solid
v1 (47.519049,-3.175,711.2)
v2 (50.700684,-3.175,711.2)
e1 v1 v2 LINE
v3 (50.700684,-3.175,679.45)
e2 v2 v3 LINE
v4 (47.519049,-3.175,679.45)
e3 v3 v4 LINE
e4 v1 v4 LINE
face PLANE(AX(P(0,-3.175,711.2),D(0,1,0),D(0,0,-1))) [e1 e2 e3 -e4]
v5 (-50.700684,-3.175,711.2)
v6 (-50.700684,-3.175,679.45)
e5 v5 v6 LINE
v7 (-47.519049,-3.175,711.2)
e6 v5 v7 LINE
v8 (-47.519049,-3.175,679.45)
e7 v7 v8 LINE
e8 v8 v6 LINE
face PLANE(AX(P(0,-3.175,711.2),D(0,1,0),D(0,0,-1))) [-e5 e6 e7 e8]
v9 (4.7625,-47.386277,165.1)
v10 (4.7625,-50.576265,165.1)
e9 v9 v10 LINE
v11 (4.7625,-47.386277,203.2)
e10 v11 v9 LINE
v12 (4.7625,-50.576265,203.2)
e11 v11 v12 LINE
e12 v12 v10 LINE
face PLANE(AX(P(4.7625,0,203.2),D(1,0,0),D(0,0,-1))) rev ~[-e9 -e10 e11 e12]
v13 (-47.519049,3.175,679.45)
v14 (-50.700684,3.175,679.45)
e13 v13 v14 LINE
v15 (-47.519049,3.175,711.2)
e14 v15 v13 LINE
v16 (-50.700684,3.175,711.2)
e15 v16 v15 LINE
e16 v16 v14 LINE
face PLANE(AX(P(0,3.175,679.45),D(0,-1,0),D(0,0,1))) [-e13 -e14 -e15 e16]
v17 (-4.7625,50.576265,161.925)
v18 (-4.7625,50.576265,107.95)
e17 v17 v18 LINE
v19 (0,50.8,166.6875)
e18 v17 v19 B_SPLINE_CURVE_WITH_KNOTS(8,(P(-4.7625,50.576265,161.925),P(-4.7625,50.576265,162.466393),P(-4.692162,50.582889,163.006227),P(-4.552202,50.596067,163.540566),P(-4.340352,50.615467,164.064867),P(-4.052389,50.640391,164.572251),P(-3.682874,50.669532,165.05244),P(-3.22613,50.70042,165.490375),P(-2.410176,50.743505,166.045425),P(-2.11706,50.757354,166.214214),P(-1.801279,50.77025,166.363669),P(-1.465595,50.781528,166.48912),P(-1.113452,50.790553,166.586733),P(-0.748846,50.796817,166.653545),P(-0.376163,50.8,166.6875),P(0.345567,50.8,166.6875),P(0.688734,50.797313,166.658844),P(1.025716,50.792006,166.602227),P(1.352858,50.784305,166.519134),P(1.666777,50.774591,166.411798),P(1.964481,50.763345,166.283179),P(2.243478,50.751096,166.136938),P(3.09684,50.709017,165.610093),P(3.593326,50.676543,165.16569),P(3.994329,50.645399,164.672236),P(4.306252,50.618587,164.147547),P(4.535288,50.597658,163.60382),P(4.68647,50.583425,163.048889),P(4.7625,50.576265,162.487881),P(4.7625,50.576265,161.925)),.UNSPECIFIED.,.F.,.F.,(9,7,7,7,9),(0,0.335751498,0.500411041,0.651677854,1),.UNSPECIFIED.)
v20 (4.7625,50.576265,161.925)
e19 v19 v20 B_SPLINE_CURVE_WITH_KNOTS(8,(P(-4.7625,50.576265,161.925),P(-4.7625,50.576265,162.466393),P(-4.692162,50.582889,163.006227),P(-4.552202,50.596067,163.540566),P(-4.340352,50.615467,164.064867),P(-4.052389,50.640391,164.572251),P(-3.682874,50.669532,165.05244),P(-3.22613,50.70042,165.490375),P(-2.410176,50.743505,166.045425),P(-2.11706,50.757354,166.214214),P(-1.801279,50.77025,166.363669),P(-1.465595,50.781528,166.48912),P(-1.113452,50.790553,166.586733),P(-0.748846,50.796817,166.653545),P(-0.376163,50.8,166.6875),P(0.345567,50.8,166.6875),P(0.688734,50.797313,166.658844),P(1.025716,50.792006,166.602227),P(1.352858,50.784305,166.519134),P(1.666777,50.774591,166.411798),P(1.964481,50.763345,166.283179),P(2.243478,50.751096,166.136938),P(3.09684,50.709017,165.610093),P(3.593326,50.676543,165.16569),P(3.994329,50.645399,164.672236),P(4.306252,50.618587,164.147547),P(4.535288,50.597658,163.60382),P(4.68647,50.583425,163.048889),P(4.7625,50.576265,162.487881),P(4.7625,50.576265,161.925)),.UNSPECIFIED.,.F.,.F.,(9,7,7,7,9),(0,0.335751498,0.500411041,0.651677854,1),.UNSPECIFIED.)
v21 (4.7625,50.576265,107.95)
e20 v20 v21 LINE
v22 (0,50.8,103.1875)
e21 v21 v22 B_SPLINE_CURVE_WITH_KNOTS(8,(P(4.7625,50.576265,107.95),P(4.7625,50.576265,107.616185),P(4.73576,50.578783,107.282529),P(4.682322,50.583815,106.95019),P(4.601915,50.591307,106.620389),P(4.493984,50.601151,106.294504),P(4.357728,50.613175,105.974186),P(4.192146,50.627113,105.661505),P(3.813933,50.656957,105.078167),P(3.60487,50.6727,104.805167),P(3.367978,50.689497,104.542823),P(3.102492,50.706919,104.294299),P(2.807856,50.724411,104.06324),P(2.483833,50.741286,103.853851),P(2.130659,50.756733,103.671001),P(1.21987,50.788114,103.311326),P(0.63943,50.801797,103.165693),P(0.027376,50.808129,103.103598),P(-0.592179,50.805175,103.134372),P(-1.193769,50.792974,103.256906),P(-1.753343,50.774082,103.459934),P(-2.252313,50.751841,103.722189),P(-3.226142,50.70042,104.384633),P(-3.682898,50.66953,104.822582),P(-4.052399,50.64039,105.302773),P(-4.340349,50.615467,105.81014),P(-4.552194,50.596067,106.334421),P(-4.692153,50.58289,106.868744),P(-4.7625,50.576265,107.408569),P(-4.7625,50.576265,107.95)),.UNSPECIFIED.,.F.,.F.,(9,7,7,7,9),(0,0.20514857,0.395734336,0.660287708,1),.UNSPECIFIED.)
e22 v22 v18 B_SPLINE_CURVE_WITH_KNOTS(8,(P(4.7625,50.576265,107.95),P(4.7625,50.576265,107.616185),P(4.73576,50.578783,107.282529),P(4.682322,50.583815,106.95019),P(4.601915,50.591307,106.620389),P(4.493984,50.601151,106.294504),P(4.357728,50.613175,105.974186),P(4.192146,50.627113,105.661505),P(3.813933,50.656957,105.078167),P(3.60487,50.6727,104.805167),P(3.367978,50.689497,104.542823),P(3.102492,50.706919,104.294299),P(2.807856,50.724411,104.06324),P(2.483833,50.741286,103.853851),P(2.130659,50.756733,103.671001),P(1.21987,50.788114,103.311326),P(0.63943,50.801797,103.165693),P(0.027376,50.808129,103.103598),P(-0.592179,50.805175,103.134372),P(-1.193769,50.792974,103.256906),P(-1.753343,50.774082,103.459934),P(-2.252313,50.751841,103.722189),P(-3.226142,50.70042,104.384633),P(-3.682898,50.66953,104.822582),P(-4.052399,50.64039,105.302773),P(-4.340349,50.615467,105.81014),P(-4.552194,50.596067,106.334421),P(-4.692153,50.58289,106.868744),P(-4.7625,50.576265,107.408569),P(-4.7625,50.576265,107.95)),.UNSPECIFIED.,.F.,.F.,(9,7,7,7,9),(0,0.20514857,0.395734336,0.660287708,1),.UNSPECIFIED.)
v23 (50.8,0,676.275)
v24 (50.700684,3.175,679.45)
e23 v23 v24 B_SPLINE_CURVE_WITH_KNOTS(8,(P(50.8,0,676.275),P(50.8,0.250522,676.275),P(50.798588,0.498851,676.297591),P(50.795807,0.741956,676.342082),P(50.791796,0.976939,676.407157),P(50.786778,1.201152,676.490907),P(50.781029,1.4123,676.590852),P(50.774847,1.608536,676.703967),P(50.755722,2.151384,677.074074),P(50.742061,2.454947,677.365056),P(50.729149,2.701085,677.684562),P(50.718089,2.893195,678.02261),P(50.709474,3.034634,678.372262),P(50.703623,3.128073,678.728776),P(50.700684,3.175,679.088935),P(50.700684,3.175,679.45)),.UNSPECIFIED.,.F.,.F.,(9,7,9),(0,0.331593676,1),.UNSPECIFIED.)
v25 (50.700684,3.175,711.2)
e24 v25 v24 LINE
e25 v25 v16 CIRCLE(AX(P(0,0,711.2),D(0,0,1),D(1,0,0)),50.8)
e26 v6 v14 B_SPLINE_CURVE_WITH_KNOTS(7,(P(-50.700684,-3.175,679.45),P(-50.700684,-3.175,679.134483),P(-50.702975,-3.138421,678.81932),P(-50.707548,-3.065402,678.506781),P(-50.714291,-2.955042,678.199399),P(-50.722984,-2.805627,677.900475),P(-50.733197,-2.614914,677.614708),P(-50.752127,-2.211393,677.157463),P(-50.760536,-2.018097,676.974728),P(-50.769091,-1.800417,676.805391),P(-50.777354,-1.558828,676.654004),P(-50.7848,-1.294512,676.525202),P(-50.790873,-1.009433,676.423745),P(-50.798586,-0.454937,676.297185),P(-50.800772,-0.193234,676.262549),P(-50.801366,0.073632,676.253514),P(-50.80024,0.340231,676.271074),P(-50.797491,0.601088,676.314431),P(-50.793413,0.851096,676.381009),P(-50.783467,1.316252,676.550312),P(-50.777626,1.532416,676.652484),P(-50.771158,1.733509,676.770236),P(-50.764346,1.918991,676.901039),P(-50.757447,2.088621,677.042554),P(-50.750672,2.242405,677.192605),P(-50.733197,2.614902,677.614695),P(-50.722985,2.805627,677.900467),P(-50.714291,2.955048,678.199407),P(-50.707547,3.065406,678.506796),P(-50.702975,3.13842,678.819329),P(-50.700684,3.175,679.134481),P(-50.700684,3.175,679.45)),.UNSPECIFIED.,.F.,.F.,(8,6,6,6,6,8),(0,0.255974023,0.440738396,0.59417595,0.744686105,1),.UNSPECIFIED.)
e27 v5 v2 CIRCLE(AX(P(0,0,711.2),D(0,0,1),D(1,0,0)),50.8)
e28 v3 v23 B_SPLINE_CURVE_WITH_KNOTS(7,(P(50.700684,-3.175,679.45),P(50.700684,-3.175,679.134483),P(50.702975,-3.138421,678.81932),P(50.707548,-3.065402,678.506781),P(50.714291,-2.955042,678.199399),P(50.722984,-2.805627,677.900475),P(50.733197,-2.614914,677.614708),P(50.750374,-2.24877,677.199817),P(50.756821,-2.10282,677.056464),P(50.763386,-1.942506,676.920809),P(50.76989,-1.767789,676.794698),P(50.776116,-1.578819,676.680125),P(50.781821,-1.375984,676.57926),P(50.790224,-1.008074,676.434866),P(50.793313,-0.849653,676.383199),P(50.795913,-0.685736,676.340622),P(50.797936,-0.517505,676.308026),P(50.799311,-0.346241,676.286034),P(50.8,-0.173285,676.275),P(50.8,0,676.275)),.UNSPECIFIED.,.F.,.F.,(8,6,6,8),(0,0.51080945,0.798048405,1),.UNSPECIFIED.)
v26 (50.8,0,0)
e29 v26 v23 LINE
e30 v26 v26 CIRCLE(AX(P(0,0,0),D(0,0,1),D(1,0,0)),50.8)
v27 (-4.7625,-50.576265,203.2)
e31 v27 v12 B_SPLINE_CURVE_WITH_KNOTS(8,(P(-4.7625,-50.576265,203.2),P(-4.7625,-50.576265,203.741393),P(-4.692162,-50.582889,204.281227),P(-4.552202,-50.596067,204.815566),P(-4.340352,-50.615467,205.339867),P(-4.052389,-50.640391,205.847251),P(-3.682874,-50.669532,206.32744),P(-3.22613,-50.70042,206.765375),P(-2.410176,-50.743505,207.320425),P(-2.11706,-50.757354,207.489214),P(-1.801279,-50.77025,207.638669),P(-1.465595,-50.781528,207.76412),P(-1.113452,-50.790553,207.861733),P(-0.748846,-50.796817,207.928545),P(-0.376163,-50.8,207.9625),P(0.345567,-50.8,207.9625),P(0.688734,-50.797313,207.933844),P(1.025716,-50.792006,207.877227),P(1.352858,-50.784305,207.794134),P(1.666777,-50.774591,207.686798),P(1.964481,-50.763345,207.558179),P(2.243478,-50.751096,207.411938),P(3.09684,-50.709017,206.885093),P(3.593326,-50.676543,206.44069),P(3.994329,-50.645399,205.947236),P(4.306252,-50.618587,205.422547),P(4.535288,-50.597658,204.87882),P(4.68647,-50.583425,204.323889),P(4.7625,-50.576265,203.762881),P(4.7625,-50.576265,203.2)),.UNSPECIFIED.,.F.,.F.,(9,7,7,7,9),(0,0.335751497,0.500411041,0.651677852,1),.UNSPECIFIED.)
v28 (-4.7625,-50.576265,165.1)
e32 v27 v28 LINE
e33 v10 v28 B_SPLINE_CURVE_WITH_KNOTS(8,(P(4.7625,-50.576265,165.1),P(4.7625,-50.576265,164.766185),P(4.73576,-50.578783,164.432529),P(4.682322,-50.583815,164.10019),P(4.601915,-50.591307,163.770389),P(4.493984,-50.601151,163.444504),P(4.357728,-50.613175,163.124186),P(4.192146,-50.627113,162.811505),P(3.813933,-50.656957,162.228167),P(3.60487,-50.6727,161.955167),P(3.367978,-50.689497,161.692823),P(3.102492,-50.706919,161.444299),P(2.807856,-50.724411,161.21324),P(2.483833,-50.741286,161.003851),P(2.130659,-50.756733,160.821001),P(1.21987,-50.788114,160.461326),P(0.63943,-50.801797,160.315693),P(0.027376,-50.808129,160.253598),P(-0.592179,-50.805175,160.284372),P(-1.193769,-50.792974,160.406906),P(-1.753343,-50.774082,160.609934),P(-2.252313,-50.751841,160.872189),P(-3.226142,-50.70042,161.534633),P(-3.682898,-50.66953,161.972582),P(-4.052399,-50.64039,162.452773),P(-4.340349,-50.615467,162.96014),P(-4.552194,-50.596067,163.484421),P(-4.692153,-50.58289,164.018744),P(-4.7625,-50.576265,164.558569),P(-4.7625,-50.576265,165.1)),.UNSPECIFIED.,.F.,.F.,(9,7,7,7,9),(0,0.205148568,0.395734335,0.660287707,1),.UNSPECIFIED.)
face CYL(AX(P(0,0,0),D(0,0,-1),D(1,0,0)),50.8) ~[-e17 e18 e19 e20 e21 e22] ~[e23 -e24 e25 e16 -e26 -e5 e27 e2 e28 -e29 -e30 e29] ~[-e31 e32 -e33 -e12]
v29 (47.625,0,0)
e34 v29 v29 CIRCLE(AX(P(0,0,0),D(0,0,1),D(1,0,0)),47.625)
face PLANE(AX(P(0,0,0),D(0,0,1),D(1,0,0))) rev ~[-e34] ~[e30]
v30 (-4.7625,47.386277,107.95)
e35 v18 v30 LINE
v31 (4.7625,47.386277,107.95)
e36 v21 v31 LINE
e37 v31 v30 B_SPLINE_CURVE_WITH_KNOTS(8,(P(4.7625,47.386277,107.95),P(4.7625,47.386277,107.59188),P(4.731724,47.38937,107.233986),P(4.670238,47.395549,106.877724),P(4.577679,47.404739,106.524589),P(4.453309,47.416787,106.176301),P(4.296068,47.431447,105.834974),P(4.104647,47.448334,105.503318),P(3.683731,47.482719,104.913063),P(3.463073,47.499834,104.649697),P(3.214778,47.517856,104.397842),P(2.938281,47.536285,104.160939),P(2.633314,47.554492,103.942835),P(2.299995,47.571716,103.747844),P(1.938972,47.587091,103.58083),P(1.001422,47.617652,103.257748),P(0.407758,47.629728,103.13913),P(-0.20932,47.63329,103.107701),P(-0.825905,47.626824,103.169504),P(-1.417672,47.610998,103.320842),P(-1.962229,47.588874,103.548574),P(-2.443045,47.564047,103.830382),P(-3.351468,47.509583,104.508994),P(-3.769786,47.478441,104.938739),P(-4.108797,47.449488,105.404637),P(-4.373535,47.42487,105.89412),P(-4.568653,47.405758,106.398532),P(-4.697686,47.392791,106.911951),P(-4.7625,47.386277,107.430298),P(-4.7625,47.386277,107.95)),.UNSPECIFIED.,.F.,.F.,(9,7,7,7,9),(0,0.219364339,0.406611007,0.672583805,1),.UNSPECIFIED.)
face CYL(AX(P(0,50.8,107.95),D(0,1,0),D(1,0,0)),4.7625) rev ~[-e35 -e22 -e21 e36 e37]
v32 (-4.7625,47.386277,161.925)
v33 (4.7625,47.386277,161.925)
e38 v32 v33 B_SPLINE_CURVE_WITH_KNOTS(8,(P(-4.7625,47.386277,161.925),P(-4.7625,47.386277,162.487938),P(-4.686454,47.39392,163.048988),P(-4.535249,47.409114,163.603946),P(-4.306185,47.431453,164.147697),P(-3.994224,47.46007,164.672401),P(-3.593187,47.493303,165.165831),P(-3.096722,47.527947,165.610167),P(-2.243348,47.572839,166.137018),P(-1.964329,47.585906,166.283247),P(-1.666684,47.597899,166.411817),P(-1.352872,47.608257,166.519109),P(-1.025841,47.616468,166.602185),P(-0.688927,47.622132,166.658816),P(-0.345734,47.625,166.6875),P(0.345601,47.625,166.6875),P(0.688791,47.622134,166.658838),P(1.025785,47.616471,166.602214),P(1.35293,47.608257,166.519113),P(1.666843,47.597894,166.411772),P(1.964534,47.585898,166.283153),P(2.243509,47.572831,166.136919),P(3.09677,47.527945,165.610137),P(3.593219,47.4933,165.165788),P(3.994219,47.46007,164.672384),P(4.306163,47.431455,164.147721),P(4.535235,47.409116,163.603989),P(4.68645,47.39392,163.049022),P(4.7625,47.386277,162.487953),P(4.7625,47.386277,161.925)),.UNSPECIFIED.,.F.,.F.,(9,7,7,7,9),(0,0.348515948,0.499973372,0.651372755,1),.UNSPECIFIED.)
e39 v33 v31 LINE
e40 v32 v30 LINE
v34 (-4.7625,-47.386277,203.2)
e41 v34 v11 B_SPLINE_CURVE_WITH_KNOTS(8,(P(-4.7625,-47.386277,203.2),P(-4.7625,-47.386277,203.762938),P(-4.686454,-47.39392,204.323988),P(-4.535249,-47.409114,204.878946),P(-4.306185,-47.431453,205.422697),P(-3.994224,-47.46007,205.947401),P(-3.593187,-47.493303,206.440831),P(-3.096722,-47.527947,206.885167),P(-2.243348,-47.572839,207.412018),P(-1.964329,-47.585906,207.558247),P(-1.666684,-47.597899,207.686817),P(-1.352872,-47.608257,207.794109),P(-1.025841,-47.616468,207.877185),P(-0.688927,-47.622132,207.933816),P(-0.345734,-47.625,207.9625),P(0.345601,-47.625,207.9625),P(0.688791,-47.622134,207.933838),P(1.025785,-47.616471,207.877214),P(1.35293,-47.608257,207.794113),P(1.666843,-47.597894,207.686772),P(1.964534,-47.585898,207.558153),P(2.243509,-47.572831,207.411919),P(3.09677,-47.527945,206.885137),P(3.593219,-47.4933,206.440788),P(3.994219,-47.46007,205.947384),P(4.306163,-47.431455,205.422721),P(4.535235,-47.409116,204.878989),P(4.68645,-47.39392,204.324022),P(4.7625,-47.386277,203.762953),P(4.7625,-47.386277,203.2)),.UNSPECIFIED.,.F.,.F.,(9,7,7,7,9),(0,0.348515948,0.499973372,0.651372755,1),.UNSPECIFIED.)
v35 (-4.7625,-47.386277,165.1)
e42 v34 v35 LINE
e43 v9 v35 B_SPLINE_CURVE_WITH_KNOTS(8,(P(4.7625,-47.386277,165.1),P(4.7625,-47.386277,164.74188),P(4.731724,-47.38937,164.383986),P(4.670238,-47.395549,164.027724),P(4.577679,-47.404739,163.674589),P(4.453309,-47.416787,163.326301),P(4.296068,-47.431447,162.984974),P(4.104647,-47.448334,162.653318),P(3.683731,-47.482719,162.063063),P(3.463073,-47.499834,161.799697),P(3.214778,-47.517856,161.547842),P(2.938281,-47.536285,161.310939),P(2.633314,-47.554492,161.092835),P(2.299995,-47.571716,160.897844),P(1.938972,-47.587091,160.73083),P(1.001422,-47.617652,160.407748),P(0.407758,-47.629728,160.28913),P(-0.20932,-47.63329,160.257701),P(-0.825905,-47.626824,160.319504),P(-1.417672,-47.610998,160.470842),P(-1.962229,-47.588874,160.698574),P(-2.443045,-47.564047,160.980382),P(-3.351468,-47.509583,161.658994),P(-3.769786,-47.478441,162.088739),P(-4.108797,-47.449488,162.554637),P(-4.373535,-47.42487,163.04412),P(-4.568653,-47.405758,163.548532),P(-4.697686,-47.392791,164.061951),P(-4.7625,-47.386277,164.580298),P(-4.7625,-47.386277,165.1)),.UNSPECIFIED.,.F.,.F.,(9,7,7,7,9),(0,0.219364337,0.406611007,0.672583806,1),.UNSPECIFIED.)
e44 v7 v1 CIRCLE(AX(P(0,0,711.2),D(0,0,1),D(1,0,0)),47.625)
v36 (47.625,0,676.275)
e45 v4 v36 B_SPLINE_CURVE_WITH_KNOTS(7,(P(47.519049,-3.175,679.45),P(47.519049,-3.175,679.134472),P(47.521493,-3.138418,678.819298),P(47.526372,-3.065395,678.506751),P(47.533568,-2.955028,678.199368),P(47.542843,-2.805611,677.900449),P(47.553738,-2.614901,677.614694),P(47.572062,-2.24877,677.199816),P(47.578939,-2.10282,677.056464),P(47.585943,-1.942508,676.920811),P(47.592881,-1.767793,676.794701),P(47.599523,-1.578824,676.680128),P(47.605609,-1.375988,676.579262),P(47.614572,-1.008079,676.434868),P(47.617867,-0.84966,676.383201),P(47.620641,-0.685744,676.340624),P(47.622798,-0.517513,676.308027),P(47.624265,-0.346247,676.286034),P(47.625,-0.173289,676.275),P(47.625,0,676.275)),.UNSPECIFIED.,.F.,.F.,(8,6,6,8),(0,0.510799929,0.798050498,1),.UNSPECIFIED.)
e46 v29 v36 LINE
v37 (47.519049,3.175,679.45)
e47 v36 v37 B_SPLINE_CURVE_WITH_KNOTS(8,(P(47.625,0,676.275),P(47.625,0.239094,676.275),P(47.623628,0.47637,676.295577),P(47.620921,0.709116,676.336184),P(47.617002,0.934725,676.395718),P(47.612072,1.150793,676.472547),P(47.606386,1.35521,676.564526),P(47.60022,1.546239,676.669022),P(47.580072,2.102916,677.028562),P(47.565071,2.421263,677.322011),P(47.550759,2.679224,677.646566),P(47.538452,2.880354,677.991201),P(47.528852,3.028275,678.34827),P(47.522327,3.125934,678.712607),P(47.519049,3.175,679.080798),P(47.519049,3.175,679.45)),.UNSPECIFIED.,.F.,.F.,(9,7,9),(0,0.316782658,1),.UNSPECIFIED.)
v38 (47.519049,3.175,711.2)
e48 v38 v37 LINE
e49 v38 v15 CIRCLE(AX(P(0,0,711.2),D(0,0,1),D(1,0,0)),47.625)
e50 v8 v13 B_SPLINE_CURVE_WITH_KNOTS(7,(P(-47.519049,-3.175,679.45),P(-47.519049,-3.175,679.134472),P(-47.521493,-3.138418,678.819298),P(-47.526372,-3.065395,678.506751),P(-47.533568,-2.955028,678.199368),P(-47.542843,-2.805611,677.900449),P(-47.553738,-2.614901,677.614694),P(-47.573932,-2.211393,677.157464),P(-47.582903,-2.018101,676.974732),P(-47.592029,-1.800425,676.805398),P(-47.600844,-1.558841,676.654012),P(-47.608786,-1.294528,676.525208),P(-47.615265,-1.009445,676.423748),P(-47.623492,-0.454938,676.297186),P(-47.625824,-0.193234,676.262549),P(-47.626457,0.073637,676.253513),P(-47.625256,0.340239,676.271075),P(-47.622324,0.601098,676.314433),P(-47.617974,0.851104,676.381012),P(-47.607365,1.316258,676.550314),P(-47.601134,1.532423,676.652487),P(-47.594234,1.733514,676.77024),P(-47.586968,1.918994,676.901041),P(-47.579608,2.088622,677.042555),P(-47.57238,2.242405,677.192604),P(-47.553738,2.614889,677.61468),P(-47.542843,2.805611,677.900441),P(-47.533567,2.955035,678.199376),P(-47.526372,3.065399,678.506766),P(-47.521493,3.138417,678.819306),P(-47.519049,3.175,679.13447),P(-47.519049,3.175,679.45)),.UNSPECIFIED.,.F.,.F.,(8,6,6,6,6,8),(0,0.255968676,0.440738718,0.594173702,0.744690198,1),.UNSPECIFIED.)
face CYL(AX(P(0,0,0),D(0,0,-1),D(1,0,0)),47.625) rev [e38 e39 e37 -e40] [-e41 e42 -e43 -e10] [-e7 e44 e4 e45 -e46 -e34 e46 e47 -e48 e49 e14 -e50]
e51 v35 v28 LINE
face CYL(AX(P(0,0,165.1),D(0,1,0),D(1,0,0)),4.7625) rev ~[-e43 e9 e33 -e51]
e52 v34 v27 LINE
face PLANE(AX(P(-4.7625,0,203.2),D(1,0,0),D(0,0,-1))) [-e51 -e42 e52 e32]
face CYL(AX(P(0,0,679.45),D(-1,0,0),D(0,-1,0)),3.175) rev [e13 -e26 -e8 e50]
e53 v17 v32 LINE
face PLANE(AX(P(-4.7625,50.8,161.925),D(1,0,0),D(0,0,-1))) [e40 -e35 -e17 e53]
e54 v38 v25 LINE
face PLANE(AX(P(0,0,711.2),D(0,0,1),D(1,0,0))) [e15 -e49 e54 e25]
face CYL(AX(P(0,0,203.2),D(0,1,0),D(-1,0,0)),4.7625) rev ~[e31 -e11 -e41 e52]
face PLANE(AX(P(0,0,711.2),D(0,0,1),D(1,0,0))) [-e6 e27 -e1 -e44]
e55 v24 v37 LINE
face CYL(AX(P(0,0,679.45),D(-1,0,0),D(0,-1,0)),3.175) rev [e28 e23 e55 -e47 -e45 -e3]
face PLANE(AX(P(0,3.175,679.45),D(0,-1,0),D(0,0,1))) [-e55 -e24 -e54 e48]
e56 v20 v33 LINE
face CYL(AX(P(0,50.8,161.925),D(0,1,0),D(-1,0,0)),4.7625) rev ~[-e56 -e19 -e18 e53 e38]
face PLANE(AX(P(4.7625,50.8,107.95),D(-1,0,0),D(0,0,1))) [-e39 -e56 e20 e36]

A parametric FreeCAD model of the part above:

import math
import FreeCAD as App
import Part
import Sketcher
from FreeCAD import Vector
Q = App.Units.Quantity

doc = App.newDocument("Part")
body = doc.addObject("PartDesign::Body", "Body")

# Sketch on XY plane
sketch1 = body.newObject("Sketcher::SketchObject", "Sketch")
sketch1.AttachmentSupport = (doc.getObject("XY_Plane"), [""])
sketch1.MapMode = "FlatFace"
sketch1.addGeometry(Part.Circle(Vector(0, 0, 0), Vector(0, 0, 1), 51), False)
sketch1.addGeometry(Part.Circle(Vector(0, 0, 0), Vector(0, 0, 1), 48), False)
sketch1.addConstraint(Sketcher.Constraint("Coincident", 0, 3, -1, 1))
sketch1.addConstraint(Sketcher.Constraint("Coincident", 1, 3, -1, 1))
sketch1.addConstraint(Sketcher.Constraint("Diameter", 0, Q("4 in")))
sketch1.addConstraint(Sketcher.Constraint("Diameter", 1, Q("3.75 in")))
pad1 = body.newObject("PartDesign::Pad", "Pad")
pad1.Profile = sketch1
pad1.Length = Q("28 in")

# Sketch on YZ plane
sketch2 = body.newObject("Sketcher::SketchObject", "Sketch001")
sketch2.AttachmentSupport = (doc.getObject("YZ_Plane"), [""])
sketch2.MapMode = "FlatFace"
sketch2.addGeometry(Part.LineSegment(Vector(3.2, 679.5, 0), Vector(3.2, 711.2, 0)), False)
sketch2.addGeometry(Part.LineSegment(Vector(3.2, 711.2, 0), Vector(-3.2, 711.2, 0)), False)
sketch2.addGeometry(Part.LineSegment(Vector(-3.2, 711.2, 0), Vector(-3.2, 679.5, 0)), False)
sketch2.addGeometry(Part.ArcOfCircle(Part.Circle(Vector(0, 679.5, 0), Vector(0, 0, 1), 3.2), math.radians(180), math.radians(360)), False)
sketch2.addConstraint(Sketcher.Constraint("Coincident", 0, 2, 1, 1))
sketch2.addConstraint(Sketcher.Constraint("Coincident", 1, 2, 2, 1))
sketch2.addConstraint(Sketcher.Constraint("Tangent", 2, 2, 3, 1))
sketch2.addConstraint(Sketcher.Constraint("Tangent", 3, 2, 0, 1))
sketch2.addConstraint(Sketcher.Constraint("Vertical", 0))
sketch2.addConstraint(Sketcher.Constraint("Horizontal", 1))
sketch2.addConstraint(Sketcher.Constraint("Vertical", 2))
sketch2.addConstraint(Sketcher.Constraint("PointOnObject", 3, 3, -2))
sketch2.addConstraint(Sketcher.Constraint("Radius", 3, Q("0.125 in")))
sketch2.addConstraint(Sketcher.Constraint("DistanceY", 0, 1, 0, 2, Q("1.25 in")))
sketch2.addConstraint(Sketcher.Constraint("DistanceY", -1, 1, 0, 2, Q("28 in")))
pocket1 = body.newObject("PartDesign::Pocket", "Pocket")
pocket1.Profile = sketch2
pocket1.Type = "ThroughAll"
pocket1.Midplane = True

# Sketch on XZ plane
sketch3 = body.newObject("Sketcher::SketchObject", "Sketch002")
sketch3.AttachmentSupport = (doc.getObject("XZ_Plane"), [""])
sketch3.MapMode = "FlatFace"
sketch3.addGeometry(Part.LineSegment(Vector(-4.8, 165.1, 0), Vector(-4.8, 203.2, 0)), False)
sketch3.addGeometry(Part.ArcOfCircle(Part.Circle(Vector(0, 203.2, 0), Vector(0, 0, 1), 4.8), math.radians(0), math.radians(180)), False)
sketch3.addGeometry(Part.LineSegment(Vector(4.8, 203.2, 0), Vector(4.8, 165.1, 0)), False)
sketch3.addGeometry(Part.ArcOfCircle(Part.Circle(Vector(0, 165.1, 0), Vector(0, 0, 1), 4.8), math.radians(180), math.radians(360)), False)
sketch3.addConstraint(Sketcher.Constraint("Tangent", 0, 2, 1, 2))
sketch3.addConstraint(Sketcher.Constraint("Tangent", 1, 1, 2, 1))
sketch3.addConstraint(Sketcher.Constraint("Tangent", 2, 2, 3, 2))
sketch3.addConstraint(Sketcher.Constraint("Tangent", 3, 1, 0, 1))
sketch3.addConstraint(Sketcher.Constraint("Vertical", 0))
sketch3.addConstraint(Sketcher.Constraint("Vertical", 2))
sketch3.addConstraint(Sketcher.Constraint("PointOnObject", 1, 3, -2))
sketch3.addConstraint(Sketcher.Constraint("DistanceY", -1, 1, 1, 3, Q("8 in")))
sketch3.addConstraint(Sketcher.Constraint("Radius", 1, Q("0.1875 in")))
sketch3.addConstraint(Sketcher.Constraint("DistanceY", -1, 1, 3, 3, Q("6.5 in")))
pocket2 = body.newObject("PartDesign::Pocket", "Pocket001")
pocket2.Profile = sketch3
pocket2.Type = "ThroughAll"
pocket2.Reversed = True

# Sketch on XZ plane
sketch4 = body.newObject("Sketcher::SketchObject", "Sketch003")
sketch4.AttachmentSupport = (doc.getObject("XZ_Plane"), [""])
sketch4.MapMode = "FlatFace"
sketch4.AttachmentOffset = App.Placement(Vector(0, 0, -2 * 25.4), App.Rotation())
sketch4.addGeometry(Part.LineSegment(Vector(-4.8, 108, 0), Vector(-4.8, 161.9, 0)), False)
sketch4.addGeometry(Part.ArcOfCircle(Part.Circle(Vector(0, 161.9, 0), Vector(0, 0, 1), 4.8), math.radians(0), math.radians(180)), False)
sketch4.addGeometry(Part.LineSegment(Vector(4.8, 161.9, 0), Vector(4.8, 108, 0)), False)
sketch4.addGeometry(Part.ArcOfCircle(Part.Circle(Vector(0, 108, 0), Vector(0, 0, 1), 4.8), math.radians(180), math.radians(360)), False)
sketch4.addConstraint(Sketcher.Constraint("Tangent", 0, 2, 1, 2))
sketch4.addConstraint(Sketcher.Constraint("Tangent", 1, 1, 2, 1))
sketch4.addConstraint(Sketcher.Constraint("Tangent", 2, 2, 3, 2))
sketch4.addConstraint(Sketcher.Constraint("Tangent", 3, 1, 0, 1))
sketch4.addConstraint(Sketcher.Constraint("Vertical", 0))
sketch4.addConstraint(Sketcher.Constraint("Vertical", 2))
sketch4.addConstraint(Sketcher.Constraint("PointOnObject", 1, 3, -2))
sketch4.addConstraint(Sketcher.Constraint("Radius", 1, Q("0.1875 in")))
sketch4.addConstraint(Sketcher.Constraint("DistanceY", -1, 1, 3, 3, Q("4.25 in")))
sketch4.addConstraint(Sketcher.Constraint("DistanceY", -1, 1, 1, 3, Q("6.375 in")))
pocket3 = body.newObject("PartDesign::Pocket", "Pocket002")
pocket3.Profile = sketch4
pocket3.Length = Q("1 in")
pocket3.Reversed = True

doc.recompute()
